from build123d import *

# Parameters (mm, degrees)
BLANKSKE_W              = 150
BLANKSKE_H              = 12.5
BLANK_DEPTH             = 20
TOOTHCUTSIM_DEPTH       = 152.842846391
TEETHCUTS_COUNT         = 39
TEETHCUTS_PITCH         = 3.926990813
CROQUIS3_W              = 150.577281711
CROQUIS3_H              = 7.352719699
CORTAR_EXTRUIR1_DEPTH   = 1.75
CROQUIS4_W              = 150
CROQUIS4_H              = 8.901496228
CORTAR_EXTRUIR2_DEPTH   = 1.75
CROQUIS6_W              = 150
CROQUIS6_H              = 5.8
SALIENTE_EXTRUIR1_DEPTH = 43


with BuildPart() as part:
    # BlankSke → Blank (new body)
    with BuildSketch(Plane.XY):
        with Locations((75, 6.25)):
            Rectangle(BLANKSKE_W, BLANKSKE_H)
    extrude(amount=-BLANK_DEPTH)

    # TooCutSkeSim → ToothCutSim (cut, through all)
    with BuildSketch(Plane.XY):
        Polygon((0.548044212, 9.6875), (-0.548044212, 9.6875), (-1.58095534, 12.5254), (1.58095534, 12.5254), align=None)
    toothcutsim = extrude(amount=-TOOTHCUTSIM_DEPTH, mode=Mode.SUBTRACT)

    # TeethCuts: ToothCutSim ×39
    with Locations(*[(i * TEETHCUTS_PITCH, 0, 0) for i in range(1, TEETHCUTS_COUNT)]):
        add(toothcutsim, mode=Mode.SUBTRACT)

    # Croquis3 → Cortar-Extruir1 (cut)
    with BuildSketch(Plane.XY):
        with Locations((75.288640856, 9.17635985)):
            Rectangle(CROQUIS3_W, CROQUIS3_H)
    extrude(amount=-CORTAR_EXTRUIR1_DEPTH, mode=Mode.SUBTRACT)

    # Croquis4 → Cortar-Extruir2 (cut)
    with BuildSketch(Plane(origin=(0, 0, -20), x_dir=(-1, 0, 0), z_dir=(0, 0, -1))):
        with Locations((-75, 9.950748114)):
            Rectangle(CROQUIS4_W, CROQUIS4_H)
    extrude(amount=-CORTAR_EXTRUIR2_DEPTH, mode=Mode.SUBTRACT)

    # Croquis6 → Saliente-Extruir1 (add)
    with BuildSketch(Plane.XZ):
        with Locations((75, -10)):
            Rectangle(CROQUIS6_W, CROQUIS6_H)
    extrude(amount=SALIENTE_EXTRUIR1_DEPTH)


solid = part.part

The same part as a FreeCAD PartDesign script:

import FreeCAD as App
import Part
import Sketcher
from FreeCAD import Vector
Q = App.Units.Quantity


def add_polygon(sketch, points):
    """Adds a closed chain of lines whose ends are joined by coincident constraints."""
    first, n = sketch.GeometryCount, len(points)
    for a, b in zip(points, points[1:] + points[:1]):
        sketch.addGeometry(Part.LineSegment(App.Vector(*a, 0), App.Vector(*b, 0)), False)
    for i in range(n):
        sketch.addConstraint(Sketcher.Constraint("Coincident", first + i, 2, first + (i + 1) % n, 1))

doc = App.newDocument("Part")
params = doc.addObject("Spreadsheet::Sheet", "Params")
for row, (alias, value) in enumerate([
    ("sketch1_width", "150 mm"),
    ("sketch1_height", "12.5 mm"),
    ("pad1_length", "20 mm"),
    ("linearpattern_pitch", "3.926991 mm"),
    ("pocket2_length", "1.75 mm"),
    ("sketch4_width", "150 mm"),
    ("pocket3_length", "1.75 mm"),
    ("sketch5_width", "150 mm"),
    ("sketch5_height", "5.8 mm"),
    ("pad2_length", "43 mm"),
], start=1):
    params.set(f"A{row}", alias)
    params.set(f"B{row}", "=" + value)
    params.setAlias(f"B{row}", alias)

body = doc.addObject("PartDesign::Body", "Body")

# Sketch on XY plane
sketch1 = body.newObject("Sketcher::SketchObject", "Sketch")
sketch1.AttachmentSupport = (doc.getObject("XY_Plane"), [""])
sketch1.MapMode = "FlatFace"
add_polygon(sketch1, [(0, 12.5), (0, 0), (150, 0), (150, 12.5)])  # lines 0-3
sketch1.addConstraint([
    Sketcher.Constraint("Vertical", 0),
    Sketcher.Constraint("Horizontal", 1),
    Sketcher.Constraint("Vertical", 2),
    Sketcher.Constraint("Horizontal", 3),
    Sketcher.Constraint("Coincident", 0, 2, -1, 1),
    Sketcher.Constraint("DistanceX", 1, 1, 1, 2, Q("150 mm")),
    Sketcher.Constraint("DistanceY", 0, 2, 0, 1, Q("12.5 mm")),
])
sketch1.setExpression("Constraints[9]", "Params.sketch1_width")
sketch1.setExpression("Constraints[10]", "Params.sketch1_height")
pad1 = body.newObject("PartDesign::Pad", "Pad")
pad1.Profile = sketch1
pad1.setExpression("Length", "Params.pad1_length")
pad1.Reversed = True

# Sketch on XY plane
sketch2 = body.newObject("Sketcher::SketchObject", "Sketch001")
sketch2.AttachmentSupport = (doc.getObject("XY_Plane"), [""])
sketch2.MapMode = "FlatFace"
add_polygon(sketch2, [(-0.548044, 9.6875), (0.548044, 9.6875), (1.580955, 12.5254), (-1.580955, 12.5254)])  # lines 0-3
sketch2.addConstraint([
    Sketcher.Constraint("Horizontal", 0),
    Sketcher.Constraint("Horizontal", 2),
    Sketcher.Constraint("Equal", 1, 3),
    Sketcher.Constraint("Angle", 1, Q("70 deg")),
    Sketcher.Constraint("DistanceX", 2, 2, 0, 2, Q("2.129 mm")),
    Sketcher.Constraint("DistanceX", 0, 1, 0, 2, Q("1.096088 mm")),
    Sketcher.Constraint("DistanceY", -1, 1, 0, 2, Q("9.6875 mm")),
    Sketcher.Constraint("DistanceX", -1, 1, 0, 2, Q("0.548044 mm")),
])
pocket1 = body.newObject("PartDesign::Pocket", "Pocket")
pocket1.Profile = sketch2
pocket1.Type = "ThroughAll"
doc.recompute()

linearpattern = body.newObject("PartDesign::LinearPattern", "LinearPattern")
linearpattern.Originals = [pocket1]
linearpattern.Direction = (doc.getObject("X_Axis"), [""])
linearpattern.Mode = "offset"
linearpattern.setExpression("Offset", "Params.linearpattern_pitch")
linearpattern.Occurrences = 39
body.Tip = linearpattern

# Sketch on XY plane
sketch3 = body.newObject("Sketcher::SketchObject", "Sketch002")
sketch3.AttachmentSupport = (doc.getObject("XY_Plane"), [""])
sketch3.MapMode = "FlatFace"
add_polygon(sketch3, [(0, 12.85272), (0, 5.5), (150.577282, 5.5), (150.577282, 12.85272)])  # lines 0-3
sketch3.addConstraint([
    Sketcher.Constraint("Vertical", 0),
    Sketcher.Constraint("Horizontal", 1),
    Sketcher.Constraint("Vertical", 2),
    Sketcher.Constraint("Horizontal", 3),
    Sketcher.Constraint("PointOnObject", 0, 2, -2),
    Sketcher.Constraint("DistanceY", -1, 1, 0, 2, Q("5.5 mm")),
    Sketcher.Constraint("DistanceX", 1, 1, 1, 2, Q("150.577282 mm")),
    Sketcher.Constraint("DistanceY", 0, 2, 0, 1, Q("7.35272 mm")),
])
pocket2 = body.newObject("PartDesign::Pocket", "Pocket001")
pocket2.Profile = sketch3
pocket2.setExpression("Length", "Params.pocket2_length")

# Sketch on XY plane
sketch4 = body.newObject("Sketcher::SketchObject", "Sketch003")
sketch4.AttachmentSupport = (doc.getObject("XY_Plane"), [""])
sketch4.MapMode = "FlatFace"
sketch4.AttachmentOffset = App.Placement(Vector(0, 0, -20), App.Rotation())
add_polygon(sketch4, [(150, 14.401496), (150, 5.5), (0, 5.5), (0, 14.401496)])  # lines 0-3
sketch4.addConstraint([
    Sketcher.Constraint("Vertical", 0),
    Sketcher.Constraint("Horizontal", 1),
    Sketcher.Constraint("Vertical", 2),
    Sketcher.Constraint("Horizontal", 3),
    Sketcher.Constraint("PointOnObject", 1, 2, -2),
    Sketcher.Constraint("DistanceX", 1, 2, 1, 1, Q("150 mm")),
    Sketcher.Constraint("DistanceY", -1, 1, 0, 2, Q("5.5 mm")),
    Sketcher.Constraint("DistanceY", 0, 2, 0, 1, Q("8.901496 mm")),
])
sketch4.setExpression("Constraints[9]", "Params.sketch4_width")
pocket3 = body.newObject("PartDesign::Pocket", "Pocket002")
pocket3.Profile = sketch4
pocket3.setExpression("Length", "Params.pocket3_length")
pocket3.Reversed = True

# Sketch on XZ plane
sketch5 = body.newObject("Sketcher::SketchObject", "Sketch004")
sketch5.AttachmentSupport = (doc.getObject("XZ_Plane"), [""])
sketch5.MapMode = "FlatFace"
add_polygon(sketch5, [(0, -7.1), (0, -12.9), (150, -12.9), (150, -7.1)])  # lines 0-3
sketch5.addConstraint([
    Sketcher.Constraint("Vertical", 0),
    Sketcher.Constraint("Horizontal", 1),
    Sketcher.Constraint("Vertical", 2),
    Sketcher.Constraint("Horizontal", 3),
    Sketcher.Constraint("PointOnObject", 0, 2, -2),
    Sketcher.Constraint("DistanceX", 1, 1, 1, 2, Q("150 mm")),
    Sketcher.Constraint("DistanceY", 0, 2, 0, 1, Q("5.8 mm")),
    Sketcher.Constraint("DistanceY", 0, 2, -1, 1, Q("12.9 mm")),
])
sketch5.setExpression("Constraints[9]", "Params.sketch5_width")
sketch5.setExpression("Constraints[10]", "Params.sketch5_height")
pad2 = body.newObject("PartDesign::Pad", "Pad001")
pad2.Profile = sketch5
pad2.setExpression("Length", "Params.pad2_length")

doc.recompute()
